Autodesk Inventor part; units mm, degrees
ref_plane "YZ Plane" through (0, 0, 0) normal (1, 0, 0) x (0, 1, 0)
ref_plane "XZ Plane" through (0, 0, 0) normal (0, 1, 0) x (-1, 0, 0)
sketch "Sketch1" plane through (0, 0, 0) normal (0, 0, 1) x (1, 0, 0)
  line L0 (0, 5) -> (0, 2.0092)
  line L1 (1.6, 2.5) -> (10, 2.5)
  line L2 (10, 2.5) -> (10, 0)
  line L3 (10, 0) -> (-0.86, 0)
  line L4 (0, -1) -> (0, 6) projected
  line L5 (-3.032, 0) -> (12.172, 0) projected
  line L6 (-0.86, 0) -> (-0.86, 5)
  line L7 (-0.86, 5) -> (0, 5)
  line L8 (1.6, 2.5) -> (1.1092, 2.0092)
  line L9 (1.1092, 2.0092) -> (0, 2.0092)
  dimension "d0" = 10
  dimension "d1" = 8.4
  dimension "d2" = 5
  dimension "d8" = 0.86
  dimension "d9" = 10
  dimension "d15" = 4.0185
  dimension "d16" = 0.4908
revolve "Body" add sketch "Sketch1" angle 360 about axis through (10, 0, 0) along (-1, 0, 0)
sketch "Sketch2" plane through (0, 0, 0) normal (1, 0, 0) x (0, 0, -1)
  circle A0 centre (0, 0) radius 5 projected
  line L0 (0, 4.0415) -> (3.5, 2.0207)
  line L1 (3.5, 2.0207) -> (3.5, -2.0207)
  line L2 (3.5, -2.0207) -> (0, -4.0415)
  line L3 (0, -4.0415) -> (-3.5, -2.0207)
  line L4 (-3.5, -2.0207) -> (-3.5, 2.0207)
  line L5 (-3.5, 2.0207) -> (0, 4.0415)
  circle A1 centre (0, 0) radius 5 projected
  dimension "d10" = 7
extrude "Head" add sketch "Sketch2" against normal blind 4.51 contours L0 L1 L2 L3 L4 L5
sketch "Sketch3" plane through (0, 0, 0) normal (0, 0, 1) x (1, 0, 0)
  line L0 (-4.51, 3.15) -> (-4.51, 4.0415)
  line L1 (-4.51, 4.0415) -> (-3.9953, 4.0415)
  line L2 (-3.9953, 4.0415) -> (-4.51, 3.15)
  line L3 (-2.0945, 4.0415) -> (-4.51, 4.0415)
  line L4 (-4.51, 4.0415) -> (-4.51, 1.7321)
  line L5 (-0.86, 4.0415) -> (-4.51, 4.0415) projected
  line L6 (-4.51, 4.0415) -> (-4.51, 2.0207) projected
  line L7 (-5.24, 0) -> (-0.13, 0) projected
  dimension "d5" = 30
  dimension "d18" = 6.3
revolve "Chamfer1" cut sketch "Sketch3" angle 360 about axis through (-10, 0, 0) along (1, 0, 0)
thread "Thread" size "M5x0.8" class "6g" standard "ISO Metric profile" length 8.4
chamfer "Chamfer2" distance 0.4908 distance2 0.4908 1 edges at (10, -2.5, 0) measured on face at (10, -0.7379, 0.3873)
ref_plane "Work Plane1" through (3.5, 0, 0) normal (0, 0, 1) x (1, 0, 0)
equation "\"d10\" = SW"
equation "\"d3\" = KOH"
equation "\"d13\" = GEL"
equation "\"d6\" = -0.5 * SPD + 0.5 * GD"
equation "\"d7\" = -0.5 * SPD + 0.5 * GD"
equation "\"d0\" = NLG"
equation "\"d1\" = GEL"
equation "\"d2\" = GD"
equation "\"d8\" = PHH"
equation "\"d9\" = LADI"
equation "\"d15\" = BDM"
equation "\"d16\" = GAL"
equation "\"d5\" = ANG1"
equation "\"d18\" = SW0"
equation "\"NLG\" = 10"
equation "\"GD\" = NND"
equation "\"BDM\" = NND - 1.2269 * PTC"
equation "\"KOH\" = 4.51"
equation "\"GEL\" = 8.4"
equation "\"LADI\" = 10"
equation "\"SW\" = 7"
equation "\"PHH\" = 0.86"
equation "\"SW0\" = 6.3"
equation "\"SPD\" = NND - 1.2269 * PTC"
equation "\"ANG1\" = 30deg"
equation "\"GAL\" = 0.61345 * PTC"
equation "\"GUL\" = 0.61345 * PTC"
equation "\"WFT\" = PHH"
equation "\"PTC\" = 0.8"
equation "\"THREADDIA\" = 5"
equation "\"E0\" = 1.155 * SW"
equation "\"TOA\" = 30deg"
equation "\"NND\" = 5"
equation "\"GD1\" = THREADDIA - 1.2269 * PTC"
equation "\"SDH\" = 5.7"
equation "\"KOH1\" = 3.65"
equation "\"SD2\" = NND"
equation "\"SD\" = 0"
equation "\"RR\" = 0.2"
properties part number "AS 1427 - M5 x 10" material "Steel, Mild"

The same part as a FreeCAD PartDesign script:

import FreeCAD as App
import Part
import Sketcher
Q = App.Units.Quantity


def edges_at(feature, points):
    """Names of the edges that pass closest to the given points."""
    edges = feature.Shape.Edges
    near = lambda p: min(range(len(edges)), key=lambda i: edges[i].distToShape(Part.Vertex(*p))[0])
    return sorted({f"Edge{near(p) + 1}" for p in points})


def add_polygon(sketch, points):
    """Adds a closed chain of lines whose ends are joined by coincident constraints."""
    first, n = sketch.GeometryCount, len(points)
    for a, b in zip(points, points[1:] + points[:1]):
        sketch.addGeometry(Part.LineSegment(App.Vector(*a, 0), App.Vector(*b, 0)), False)
    for i in range(n):
        sketch.addConstraint(Sketcher.Constraint("Coincident", first + i, 2, first + (i + 1) % n, 1))

doc = App.newDocument("Part")
params = doc.addObject("Spreadsheet::Sheet", "Params")
for row, (alias, value) in enumerate([
    ("sketch1_height", "5 mm"),
    ("sketch1_width", "8.4 mm"),
    ("sketch1_width2", "0.86 mm"),
    ("sketch1_height2", "2.5 mm"),
    ("revolution_angle", "360 deg"),
    ("pad1_length", "4.51 mm"),
    ("groove_angle", "360 deg"),
    ("chamfer_size", "0.4908 mm"),
    ("chamfer_size2", "0.4908 mm"),
], start=1):
    params.set(f"A{row}", alias)
    params.set(f"B{row}", "=" + value)
    params.setAlias(f"B{row}", alias)

body = doc.addObject("PartDesign::Body", "Body")

# Sketch on XY plane
sketch1 = body.newObject("Sketcher::SketchObject", "Sketch")
sketch1.AttachmentSupport = (doc.getObject("XY_Plane"), [""])
sketch1.MapMode = "FlatFace"
add_polygon(sketch1, [(0, 2), (0, 5), (-0.9, 5), (-0.9, 0), (10, 0), (10, 2.5), (1.6, 2.5), (1.1, 2)])  # lines 0-7
sketch1.addConstraint(Sketcher.Constraint("Vertical", 0))
sketch1.addConstraint(Sketcher.Constraint("Horizontal", 1))
sketch1.addConstraint(Sketcher.Constraint("Vertical", 2))
sketch1.addConstraint(Sketcher.Constraint("Horizontal", 3))
sketch1.addConstraint(Sketcher.Constraint("Vertical", 4))
sketch1.addConstraint(Sketcher.Constraint("Horizontal", 5))
sketch1.addConstraint(Sketcher.Constraint("Horizontal", 7))
sketch1.addConstraint(Sketcher.Constraint("PointOnObject", 0, 2, -2))
sketch1.addConstraint(Sketcher.Constraint("PointOnObject", 2, 2, -1))
sketch1.addConstraint(Sketcher.Constraint("DistanceY", 2, 2, 2, 1, Q("5 mm")))
sketch1.addConstraint(Sketcher.Constraint("DistanceX", 5, 2, 5, 1, Q("8.4 mm")))
sketch1.addConstraint(Sketcher.Constraint("DistanceX", -1, 1, 3, 2, Q("10 mm")))
sketch1.addConstraint(Sketcher.Constraint("DistanceX", 1, 2, 1, 1, Q("0.86 mm")))
sketch1.addConstraint(Sketcher.Constraint("Angle", 6, Q("-135 deg")))
sketch1.addConstraint(Sketcher.Constraint("DistanceY", 4, 1, 4, 2, Q("2.5 mm")))
sketch1.addConstraint(Sketcher.Constraint("DistanceX", 6, 2, 5, 2, Q("0.4908 mm")))
sketch1.setExpression("Constraints[17]", "Params.sketch1_height")
sketch1.setExpression("Constraints[18]", "Params.sketch1_width")
sketch1.setExpression("Constraints[20]", "Params.sketch1_width2")
sketch1.setExpression("Constraints[22]", "Params.sketch1_height2")
revolution = body.newObject("PartDesign::Revolution", "Revolution")
revolution.Profile = sketch1
revolution.ReferenceAxis = (sketch1, ["H_Axis"])
revolution.setExpression("Angle", "Params.revolution_angle")

# Sketch on YZ plane
sketch2 = body.newObject("Sketcher::SketchObject", "Sketch001")
sketch2.AttachmentSupport = (doc.getObject("YZ_Plane"), [""])
sketch2.MapMode = "FlatFace"
add_polygon(sketch2, [(2, -3.5), (4, 0), (2, 3.5), (-2, 3.5), (-4, 0), (-2, -3.5)])  # lines 0-5
sketch2.addConstraint(Sketcher.Constraint("Horizontal", 2))
sketch2.addConstraint(Sketcher.Constraint("Horizontal", 5))
sketch2.addConstraint(Sketcher.Constraint("Symmetric", 0, 2, 3, 2, -1, 1))
sketch2.addConstraint(Sketcher.Constraint("Symmetric", 1, 2, 4, 2, -1, 1))
sketch2.addConstraint(Sketcher.Constraint("PointOnObject", 0, 2, -1))
sketch2.addConstraint(Sketcher.Constraint("Parallel", 0, 3))
sketch2.addConstraint(Sketcher.Constraint("Vertical", 2, 2, 4, 2))
sketch2.addConstraint(Sketcher.Constraint("DistanceY", 4, 2, 2, 2, Q("7 mm")))
sketch2.addConstraint(Sketcher.Constraint("Angle", 0, Q("59.999 deg")))
sketch2.addConstraint(Sketcher.Constraint("DistanceX", 2, 2, 2, 1, Q("4.0414 mm")))
pad1 = body.newObject("PartDesign::Pad", "Pad")
pad1.Profile = sketch2
pad1.setExpression("Length", "Params.pad1_length")
pad1.Reversed = True

# Sketch on XY plane
sketch3 = body.newObject("Sketcher::SketchObject", "Sketch002")
sketch3.AttachmentSupport = (doc.getObject("XY_Plane"), [""])
sketch3.MapMode = "FlatFace"
add_polygon(sketch3, [(-4.5, 4), (-4.5, 3.1), (-4, 4)])  # lines 0-2
sketch3.addConstraint(Sketcher.Constraint("Vertical", 0))
sketch3.addConstraint(Sketcher.Constraint("Horizontal", 2))
sketch3.addConstraint(Sketcher.Constraint("Angle", 1, Q("60.0004 deg")))
sketch3.addConstraint(Sketcher.Constraint("DistanceX", 0, 2, -1, 1, Q("4.51 mm")))
sketch3.addConstraint(Sketcher.Constraint("DistanceY", -1, 1, 0, 2, Q("3.15 mm")))
sketch3.addConstraint(Sketcher.Constraint("DistanceX", 2, 2, 2, 1, Q("0.5147 mm")))
groove = body.newObject("PartDesign::Groove", "Groove")
groove.Profile = sketch3
groove.ReferenceAxis = (sketch3, ["H_Axis"])
groove.setExpression("Angle", "Params.groove_angle")
doc.recompute()

chamfer = body.newObject("PartDesign::Chamfer", "Chamfer")
chamfer.Base = (groove, edges_at(groove, [(10, -2.5, 0)]))
chamfer.ChamferType = "Two distances"
chamfer.setExpression("Size", "Params.chamfer_size")
chamfer.setExpression("Size2", "Params.chamfer_size2")

doc.recompute()
